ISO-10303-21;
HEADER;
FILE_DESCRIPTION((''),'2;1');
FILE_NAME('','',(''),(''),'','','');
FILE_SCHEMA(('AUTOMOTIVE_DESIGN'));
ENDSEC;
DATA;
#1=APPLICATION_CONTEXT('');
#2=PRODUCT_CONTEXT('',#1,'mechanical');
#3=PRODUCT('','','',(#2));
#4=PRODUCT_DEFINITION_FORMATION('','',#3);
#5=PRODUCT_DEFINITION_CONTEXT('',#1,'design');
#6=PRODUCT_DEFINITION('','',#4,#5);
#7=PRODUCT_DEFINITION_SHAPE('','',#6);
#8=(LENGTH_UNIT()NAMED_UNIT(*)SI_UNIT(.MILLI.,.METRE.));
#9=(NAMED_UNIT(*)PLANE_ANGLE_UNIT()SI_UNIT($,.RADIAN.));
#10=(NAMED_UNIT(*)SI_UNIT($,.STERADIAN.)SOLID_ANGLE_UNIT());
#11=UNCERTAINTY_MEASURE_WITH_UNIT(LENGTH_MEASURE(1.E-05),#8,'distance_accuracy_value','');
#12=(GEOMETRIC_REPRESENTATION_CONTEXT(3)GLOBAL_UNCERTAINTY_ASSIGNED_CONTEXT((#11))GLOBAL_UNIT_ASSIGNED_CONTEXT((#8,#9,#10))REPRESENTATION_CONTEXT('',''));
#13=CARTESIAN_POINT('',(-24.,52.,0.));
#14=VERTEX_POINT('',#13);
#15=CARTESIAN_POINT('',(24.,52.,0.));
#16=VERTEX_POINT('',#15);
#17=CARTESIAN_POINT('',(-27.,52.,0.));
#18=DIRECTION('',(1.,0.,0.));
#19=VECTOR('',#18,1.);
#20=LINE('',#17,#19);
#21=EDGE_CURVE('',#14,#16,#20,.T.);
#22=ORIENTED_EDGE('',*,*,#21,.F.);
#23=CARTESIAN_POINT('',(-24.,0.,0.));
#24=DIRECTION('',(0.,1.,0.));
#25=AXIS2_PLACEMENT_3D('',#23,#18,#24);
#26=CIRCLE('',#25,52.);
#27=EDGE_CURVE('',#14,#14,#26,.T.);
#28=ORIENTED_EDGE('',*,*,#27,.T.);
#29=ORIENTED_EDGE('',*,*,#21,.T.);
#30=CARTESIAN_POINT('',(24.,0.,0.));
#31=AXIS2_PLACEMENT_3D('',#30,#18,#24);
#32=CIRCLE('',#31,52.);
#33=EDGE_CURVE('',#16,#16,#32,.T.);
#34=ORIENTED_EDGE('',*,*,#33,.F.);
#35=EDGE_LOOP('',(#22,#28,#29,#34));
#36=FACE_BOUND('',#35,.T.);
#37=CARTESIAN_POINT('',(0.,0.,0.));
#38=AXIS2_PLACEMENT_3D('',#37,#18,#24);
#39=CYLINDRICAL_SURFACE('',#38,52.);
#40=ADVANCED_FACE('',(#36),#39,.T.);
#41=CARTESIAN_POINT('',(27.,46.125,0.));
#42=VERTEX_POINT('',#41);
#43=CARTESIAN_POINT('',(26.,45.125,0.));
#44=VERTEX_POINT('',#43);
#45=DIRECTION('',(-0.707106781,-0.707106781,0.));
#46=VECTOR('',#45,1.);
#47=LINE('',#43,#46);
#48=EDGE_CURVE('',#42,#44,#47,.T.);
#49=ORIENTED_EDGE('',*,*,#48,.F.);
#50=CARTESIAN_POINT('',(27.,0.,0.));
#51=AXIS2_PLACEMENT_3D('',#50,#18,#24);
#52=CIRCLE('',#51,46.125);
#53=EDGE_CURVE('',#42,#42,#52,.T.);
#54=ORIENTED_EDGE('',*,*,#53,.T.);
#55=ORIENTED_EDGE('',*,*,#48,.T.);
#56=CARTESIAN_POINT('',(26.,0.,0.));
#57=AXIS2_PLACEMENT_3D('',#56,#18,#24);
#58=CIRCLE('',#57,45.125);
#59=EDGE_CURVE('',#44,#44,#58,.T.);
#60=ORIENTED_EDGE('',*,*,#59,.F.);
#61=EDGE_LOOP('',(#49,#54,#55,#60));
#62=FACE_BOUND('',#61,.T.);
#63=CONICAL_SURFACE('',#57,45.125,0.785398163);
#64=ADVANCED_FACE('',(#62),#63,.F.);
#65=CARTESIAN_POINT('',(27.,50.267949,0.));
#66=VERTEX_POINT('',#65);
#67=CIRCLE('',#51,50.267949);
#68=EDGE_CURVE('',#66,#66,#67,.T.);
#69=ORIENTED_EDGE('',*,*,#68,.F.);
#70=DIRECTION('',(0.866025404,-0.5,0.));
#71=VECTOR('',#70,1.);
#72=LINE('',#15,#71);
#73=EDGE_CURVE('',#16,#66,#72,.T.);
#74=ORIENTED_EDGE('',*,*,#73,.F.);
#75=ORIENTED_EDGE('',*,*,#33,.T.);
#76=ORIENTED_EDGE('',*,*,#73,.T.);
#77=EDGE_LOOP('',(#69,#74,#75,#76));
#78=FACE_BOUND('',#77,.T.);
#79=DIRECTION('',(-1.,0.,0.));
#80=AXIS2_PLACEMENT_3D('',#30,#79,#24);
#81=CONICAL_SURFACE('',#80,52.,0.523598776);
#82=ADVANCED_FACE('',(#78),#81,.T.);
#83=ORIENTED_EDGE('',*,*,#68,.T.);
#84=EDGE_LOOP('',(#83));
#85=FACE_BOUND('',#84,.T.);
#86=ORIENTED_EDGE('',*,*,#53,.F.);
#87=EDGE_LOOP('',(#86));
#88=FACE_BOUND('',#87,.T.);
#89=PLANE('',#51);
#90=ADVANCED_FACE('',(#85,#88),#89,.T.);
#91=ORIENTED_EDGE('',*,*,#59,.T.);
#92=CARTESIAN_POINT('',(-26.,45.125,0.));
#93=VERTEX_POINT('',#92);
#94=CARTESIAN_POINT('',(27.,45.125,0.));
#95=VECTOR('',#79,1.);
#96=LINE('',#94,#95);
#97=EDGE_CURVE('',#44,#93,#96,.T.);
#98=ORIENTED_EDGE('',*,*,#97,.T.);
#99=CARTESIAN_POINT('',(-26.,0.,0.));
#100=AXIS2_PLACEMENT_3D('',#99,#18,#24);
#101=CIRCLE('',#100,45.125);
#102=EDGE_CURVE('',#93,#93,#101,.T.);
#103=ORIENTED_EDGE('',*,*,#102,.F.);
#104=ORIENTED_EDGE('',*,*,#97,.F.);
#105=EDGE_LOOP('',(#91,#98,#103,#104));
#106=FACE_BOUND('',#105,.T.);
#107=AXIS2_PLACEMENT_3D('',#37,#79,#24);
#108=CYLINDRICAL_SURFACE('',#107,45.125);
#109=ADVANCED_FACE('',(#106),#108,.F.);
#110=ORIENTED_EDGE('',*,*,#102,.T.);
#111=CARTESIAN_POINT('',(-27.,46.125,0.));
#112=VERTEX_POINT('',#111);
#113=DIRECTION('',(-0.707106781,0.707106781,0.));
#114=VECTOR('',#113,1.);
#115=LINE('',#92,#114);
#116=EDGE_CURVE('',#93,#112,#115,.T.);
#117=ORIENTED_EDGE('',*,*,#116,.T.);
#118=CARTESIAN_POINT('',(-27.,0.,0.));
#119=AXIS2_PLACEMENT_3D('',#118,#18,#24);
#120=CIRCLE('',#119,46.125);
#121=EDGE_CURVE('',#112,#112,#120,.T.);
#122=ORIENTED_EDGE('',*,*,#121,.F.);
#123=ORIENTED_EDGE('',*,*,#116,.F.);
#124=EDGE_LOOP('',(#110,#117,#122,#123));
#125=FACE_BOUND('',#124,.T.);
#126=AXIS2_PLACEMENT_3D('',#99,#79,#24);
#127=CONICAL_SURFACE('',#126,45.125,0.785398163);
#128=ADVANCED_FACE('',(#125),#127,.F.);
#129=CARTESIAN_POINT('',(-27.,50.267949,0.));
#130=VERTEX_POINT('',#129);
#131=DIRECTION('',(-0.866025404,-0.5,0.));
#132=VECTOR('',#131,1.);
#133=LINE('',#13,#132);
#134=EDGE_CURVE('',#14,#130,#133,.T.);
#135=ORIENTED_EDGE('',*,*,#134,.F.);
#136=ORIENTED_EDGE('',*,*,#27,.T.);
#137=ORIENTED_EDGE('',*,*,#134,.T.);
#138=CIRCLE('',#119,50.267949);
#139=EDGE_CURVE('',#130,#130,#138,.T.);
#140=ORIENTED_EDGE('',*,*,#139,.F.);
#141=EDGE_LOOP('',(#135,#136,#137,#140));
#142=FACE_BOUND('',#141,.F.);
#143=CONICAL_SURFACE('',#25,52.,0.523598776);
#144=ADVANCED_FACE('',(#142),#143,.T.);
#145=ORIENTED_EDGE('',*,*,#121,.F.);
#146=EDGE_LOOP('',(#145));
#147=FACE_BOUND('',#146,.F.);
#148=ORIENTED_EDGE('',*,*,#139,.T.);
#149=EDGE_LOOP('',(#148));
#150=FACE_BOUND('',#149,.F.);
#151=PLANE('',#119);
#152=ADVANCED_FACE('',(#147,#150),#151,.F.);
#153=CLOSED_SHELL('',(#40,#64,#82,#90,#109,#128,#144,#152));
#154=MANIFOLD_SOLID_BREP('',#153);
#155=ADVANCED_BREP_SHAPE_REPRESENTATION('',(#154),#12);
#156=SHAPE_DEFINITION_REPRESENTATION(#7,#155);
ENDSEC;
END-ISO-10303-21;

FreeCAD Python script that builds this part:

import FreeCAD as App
import Part
import Sketcher
Q = App.Units.Quantity


def edges_at(feature, points):
    """Names of the edges that pass closest to the given points."""
    edges = feature.Shape.Edges
    near = lambda p: min(range(len(edges)), key=lambda i: edges[i].distToShape(Part.Vertex(*p))[0])
    return sorted({f"Edge{near(p) + 1}" for p in points})

doc = App.newDocument("Part")
params = doc.addObject("Spreadsheet::Sheet", "Params")
for row, (alias, value) in enumerate([
    ("sketch1_diameter", "104 mm"),
    ("sketch1_diameter2", "90.25 mm"),
    ("pad1_length", "54 mm"),
    ("chamfer_size", "1 mm"),
    ("chamfer2_size", "3 mm"),
    ("chamfer2_size2", "1.732051 mm"),
], start=1):
    params.set(f"A{row}", alias)
    params.set(f"B{row}", "=" + value)
    params.setAlias(f"B{row}", alias)

body = doc.addObject("PartDesign::Body", "Body")

# Sketch on YZ plane
sketch1 = doc.addObject("Sketcher::SketchObject", "Sketch")
body.addObject(sketch1)
sketch1.AttachmentSupport = (doc.YZ_Plane, [""])
sketch1.MapMode = "FlatFace"
sketch1.addGeometry(Part.Circle(App.Vector(0, 0, 0), App.Vector(0, 0, 1), 52), False)
sketch1.addGeometry(Part.Circle(App.Vector(0, 0, 0), App.Vector(0, 0, 1), 45.125), False)
sketch1.addConstraint(Sketcher.Constraint("Coincident", 0, 3, -1, 1))
sketch1.addConstraint(Sketcher.Constraint("Coincident", 1, 3, -1, 1))
sketch1.addConstraint(Sketcher.Constraint("Diameter", 0, Q("104 mm")))
sketch1.addConstraint(Sketcher.Constraint("Diameter", 1, Q("90.25 mm")))
sketch1.setExpression("Constraints[2]", "Params.sketch1_diameter")
sketch1.setExpression("Constraints[3]", "Params.sketch1_diameter2")
pad1 = doc.addObject("PartDesign::Pad", "Pad")
body.addObject(pad1)
pad1.Profile = sketch1
pad1.setExpression("Length", "Params.pad1_length")
pad1.Midplane = True
doc.recompute()

chamfer = doc.addObject("PartDesign::Chamfer", "Chamfer")
body.addObject(chamfer)
chamfer.Base = (pad1, edges_at(pad1, [(27, -45.125, 0), (-27, -45.125, 0)]))
chamfer.setExpression("Size", "Params.chamfer_size")
doc.recompute()

chamfer2 = doc.addObject("PartDesign::Chamfer", "Chamfer001")
body.addObject(chamfer2)
chamfer2.Base = (chamfer, edges_at(chamfer, [(-27, -52, 0), (27, -52, 0)]))
chamfer2.ChamferType = "Two distances"
chamfer2.setExpression("Size", "Params.chamfer2_size")
chamfer2.setExpression("Size2", "Params.chamfer2_size2")
chamfer2.FlipDirection = True

doc.recompute()
